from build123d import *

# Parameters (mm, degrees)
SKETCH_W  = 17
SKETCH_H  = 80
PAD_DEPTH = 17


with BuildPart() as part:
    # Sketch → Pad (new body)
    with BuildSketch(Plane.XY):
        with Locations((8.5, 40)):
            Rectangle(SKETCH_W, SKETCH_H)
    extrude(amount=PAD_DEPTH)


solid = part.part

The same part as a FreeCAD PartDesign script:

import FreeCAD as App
import Part
import Sketcher
from FreeCAD import Vector


def add_polygon(sketch, points):
    """Adds a closed chain of lines whose ends are joined by coincident constraints."""
    first, n = sketch.GeometryCount, len(points)
    for a, b in zip(points, points[1:] + points[:1]):
        sketch.addGeometry(Part.LineSegment(App.Vector(*a, 0), App.Vector(*b, 0)), False)
    for i in range(n):
        sketch.addConstraint(Sketcher.Constraint("Coincident", first + i, 2, first + (i + 1) % n, 1))

doc = App.newDocument("Part")
params = doc.addObject("Spreadsheet::Sheet", "Params")
for row, (alias, value) in enumerate([
    ("sketch1_width", "17 mm"),
    ("sketch1_height", "80 mm"),
    ("pad1_length", "17 mm"),
], start=1):
    params.set(f"A{row}", alias)
    params.set(f"B{row}", "=" + value)
    params.setAlias(f"B{row}", alias)

body = doc.addObject("PartDesign::Body", "Body")

# Sketch on XY plane
sketch1 = body.newObject("Sketcher::SketchObject", "Sketch")
sketch1.AttachmentSupport = (doc.getObject("XY_Plane"), [""])
sketch1.MapMode = "FlatFace"
add_polygon(sketch1, [(0, 80), (0, 0), (17, 0), (17, 80)])  # lines 0-3
sketch1.addConstraint([
    Sketcher.Constraint("Vertical", 0),
    Sketcher.Constraint("Horizontal", 1),
    Sketcher.Constraint("Vertical", 2),
    Sketcher.Constraint("Horizontal", 3),
    Sketcher.Constraint("Coincident", 0, 2, -1, 1),
    Sketcher.Constraint("DistanceX", 1, 1, 1, 2, 17.0),
    Sketcher.Constraint("DistanceY", 0, 2, 0, 1, 80.0),
])
sketch1.setExpression("Constraints[9]", "Params.sketch1_width")
sketch1.setExpression("Constraints[10]", "Params.sketch1_height")
pad1 = body.newObject("PartDesign::Pad", "Pad")
pad1.Profile = sketch1
pad1.setExpression("Length", "Params.pad1_length")

doc.recompute()
